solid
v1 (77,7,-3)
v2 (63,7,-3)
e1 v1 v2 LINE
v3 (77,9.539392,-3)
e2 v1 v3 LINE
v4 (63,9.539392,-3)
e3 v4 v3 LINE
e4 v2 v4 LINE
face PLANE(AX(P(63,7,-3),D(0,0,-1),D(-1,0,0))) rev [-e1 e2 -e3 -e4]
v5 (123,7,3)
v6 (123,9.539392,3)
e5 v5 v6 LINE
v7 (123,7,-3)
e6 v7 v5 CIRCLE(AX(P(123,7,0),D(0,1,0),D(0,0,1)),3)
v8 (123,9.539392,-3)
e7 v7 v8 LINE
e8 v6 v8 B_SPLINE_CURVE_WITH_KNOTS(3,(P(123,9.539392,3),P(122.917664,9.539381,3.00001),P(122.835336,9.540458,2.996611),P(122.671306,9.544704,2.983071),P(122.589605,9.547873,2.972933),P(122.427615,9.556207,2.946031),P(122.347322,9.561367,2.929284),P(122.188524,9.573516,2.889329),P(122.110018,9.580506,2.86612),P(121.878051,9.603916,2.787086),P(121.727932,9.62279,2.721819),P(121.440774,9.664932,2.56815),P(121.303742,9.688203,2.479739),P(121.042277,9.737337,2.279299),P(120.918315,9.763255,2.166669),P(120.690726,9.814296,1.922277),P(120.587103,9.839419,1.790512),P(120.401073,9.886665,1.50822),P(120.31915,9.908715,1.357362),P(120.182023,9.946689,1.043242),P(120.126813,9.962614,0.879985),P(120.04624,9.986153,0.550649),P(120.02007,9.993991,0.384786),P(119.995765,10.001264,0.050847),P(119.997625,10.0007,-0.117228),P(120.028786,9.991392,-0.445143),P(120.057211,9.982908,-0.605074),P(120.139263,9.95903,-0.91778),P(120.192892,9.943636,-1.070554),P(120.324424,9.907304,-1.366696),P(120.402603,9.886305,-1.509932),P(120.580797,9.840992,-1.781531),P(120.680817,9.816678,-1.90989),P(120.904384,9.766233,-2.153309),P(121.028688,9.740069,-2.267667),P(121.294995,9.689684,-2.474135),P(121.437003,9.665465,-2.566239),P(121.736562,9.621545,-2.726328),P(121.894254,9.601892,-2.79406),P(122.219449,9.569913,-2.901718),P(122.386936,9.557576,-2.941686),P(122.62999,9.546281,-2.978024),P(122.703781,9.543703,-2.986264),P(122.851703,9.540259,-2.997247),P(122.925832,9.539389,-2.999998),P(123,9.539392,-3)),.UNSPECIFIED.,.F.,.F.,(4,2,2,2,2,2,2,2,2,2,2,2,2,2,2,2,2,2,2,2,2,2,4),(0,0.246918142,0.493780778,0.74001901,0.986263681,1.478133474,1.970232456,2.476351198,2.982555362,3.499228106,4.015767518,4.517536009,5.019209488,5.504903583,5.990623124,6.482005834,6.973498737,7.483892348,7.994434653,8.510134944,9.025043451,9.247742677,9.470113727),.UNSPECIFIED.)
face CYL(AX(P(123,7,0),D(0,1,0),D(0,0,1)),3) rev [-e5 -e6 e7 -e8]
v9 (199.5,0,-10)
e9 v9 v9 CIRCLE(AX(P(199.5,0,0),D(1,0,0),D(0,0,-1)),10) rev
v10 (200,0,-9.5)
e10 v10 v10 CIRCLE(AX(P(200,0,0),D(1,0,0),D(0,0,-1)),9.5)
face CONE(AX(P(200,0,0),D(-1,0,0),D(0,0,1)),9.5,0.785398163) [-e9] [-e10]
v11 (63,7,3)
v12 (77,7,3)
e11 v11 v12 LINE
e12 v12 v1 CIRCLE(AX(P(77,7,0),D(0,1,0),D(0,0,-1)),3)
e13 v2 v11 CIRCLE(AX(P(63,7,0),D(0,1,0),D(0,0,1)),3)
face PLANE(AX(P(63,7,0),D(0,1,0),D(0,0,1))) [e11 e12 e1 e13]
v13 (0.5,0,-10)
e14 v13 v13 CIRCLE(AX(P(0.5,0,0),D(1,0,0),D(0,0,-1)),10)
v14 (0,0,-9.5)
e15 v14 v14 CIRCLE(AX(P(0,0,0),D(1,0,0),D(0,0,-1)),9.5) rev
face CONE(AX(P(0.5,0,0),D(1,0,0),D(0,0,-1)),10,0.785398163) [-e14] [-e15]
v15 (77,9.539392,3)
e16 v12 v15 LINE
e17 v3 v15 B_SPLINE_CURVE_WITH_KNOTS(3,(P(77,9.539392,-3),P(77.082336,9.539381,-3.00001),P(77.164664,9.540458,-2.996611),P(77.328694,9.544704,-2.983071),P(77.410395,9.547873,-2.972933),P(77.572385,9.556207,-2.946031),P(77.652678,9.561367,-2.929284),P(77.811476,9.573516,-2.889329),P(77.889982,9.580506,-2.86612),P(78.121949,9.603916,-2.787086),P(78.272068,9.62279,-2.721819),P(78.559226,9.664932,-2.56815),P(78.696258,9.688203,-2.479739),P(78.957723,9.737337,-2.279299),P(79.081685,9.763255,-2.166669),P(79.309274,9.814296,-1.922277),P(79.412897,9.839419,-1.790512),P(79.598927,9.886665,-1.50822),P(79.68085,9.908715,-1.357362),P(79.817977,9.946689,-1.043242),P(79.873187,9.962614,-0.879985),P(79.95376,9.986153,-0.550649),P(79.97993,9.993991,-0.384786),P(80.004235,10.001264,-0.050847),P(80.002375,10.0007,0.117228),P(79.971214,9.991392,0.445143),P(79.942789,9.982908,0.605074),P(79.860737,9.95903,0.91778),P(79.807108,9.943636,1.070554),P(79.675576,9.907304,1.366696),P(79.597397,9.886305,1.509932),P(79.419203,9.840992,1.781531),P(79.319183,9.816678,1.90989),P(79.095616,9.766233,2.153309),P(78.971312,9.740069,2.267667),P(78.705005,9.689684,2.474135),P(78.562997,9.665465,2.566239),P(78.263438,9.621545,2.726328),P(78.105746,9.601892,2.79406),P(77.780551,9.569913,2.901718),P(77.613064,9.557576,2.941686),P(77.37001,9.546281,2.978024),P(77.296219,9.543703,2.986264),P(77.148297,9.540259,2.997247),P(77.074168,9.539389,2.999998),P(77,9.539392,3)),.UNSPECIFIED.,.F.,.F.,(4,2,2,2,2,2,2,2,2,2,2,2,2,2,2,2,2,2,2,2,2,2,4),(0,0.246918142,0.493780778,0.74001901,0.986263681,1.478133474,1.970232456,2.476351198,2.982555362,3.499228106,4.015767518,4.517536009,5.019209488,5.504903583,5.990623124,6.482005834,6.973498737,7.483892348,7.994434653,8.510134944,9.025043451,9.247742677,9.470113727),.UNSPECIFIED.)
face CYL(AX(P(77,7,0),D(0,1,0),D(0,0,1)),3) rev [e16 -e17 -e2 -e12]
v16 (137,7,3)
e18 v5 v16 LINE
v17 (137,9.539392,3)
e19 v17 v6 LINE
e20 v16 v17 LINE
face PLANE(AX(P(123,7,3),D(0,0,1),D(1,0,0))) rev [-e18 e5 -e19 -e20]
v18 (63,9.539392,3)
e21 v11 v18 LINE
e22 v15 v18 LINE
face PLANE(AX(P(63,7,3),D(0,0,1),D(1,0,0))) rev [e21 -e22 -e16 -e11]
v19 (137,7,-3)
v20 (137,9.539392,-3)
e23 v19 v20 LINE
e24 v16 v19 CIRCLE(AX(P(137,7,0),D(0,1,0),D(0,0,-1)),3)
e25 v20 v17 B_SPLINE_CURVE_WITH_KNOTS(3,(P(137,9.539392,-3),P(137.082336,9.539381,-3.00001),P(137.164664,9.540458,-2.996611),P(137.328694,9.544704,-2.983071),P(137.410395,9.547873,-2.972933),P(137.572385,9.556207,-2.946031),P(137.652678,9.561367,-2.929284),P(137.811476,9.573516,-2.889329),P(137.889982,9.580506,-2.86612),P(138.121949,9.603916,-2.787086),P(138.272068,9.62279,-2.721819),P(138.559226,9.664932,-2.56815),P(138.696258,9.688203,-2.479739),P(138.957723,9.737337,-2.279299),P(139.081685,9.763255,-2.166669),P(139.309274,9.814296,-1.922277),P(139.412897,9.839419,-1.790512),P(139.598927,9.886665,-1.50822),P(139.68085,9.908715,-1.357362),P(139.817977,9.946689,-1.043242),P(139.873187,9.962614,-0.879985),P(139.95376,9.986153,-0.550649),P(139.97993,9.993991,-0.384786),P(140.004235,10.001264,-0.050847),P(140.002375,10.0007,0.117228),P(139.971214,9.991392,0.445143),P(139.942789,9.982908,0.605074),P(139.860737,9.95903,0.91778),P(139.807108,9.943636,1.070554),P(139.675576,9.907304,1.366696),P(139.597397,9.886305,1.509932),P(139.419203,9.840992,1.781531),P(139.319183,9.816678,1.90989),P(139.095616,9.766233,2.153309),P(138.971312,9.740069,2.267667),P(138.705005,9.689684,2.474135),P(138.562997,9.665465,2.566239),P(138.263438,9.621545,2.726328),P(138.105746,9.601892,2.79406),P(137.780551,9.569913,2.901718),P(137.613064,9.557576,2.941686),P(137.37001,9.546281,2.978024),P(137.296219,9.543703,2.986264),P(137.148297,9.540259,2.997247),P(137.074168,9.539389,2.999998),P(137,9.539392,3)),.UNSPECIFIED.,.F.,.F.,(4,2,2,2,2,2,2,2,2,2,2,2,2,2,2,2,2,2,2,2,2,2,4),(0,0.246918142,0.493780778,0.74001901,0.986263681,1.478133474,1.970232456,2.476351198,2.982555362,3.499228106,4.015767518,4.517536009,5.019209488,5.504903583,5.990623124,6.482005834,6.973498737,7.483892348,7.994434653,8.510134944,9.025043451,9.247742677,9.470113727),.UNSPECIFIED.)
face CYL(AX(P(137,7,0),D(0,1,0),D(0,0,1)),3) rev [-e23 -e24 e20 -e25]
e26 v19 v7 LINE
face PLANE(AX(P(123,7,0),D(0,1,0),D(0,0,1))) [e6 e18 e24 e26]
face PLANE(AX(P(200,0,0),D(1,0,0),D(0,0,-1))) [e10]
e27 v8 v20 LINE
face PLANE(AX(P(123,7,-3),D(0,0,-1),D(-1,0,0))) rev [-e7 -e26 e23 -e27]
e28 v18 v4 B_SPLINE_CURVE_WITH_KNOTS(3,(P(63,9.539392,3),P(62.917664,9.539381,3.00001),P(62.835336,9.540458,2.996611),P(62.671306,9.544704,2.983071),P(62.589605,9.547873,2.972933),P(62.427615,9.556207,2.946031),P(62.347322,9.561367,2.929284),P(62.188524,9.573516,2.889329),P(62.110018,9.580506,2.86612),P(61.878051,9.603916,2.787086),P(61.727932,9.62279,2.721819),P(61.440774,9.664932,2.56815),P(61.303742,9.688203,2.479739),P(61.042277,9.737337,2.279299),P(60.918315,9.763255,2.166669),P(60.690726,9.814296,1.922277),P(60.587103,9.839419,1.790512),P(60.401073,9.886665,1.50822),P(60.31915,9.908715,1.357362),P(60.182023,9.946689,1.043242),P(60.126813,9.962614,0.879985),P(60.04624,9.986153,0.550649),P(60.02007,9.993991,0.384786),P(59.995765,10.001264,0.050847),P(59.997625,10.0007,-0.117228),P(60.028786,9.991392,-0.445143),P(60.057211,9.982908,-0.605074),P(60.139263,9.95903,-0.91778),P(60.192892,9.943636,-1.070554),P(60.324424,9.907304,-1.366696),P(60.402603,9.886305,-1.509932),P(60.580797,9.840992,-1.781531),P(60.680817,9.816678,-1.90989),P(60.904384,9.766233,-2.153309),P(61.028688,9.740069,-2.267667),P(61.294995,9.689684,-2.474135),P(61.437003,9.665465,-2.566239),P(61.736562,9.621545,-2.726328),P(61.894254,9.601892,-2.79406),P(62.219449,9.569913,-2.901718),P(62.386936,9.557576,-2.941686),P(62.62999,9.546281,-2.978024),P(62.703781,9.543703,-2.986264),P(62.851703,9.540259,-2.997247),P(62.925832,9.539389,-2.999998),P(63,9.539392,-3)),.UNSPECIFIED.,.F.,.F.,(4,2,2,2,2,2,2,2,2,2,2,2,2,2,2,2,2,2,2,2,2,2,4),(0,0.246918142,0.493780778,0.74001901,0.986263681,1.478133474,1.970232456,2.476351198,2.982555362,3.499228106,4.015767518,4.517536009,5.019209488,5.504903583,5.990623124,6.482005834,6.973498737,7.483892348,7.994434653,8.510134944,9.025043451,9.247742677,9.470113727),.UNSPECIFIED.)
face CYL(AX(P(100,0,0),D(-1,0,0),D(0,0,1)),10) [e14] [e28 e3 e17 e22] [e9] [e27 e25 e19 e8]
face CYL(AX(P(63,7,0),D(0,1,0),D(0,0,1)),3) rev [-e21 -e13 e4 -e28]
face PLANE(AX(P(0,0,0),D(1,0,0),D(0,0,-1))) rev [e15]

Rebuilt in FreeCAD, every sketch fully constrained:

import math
import FreeCAD as App
import Part
import Sketcher


def edges_at(feature, points):
    """Names of the edges that pass closest to the given points."""
    edges = feature.Shape.Edges
    near = lambda p: min(range(len(edges)), key=lambda i: edges[i].distToShape(Part.Vertex(*p))[0])
    return sorted({f"Edge{near(p) + 1}" for p in points})

doc = App.newDocument("Part")
body = doc.addObject("PartDesign::Body", "Body")

# Sketch on YZ plane
sketch1 = body.newObject("Sketcher::SketchObject", "Sketch")
sketch1.AttachmentSupport = (doc.getObject("YZ_Plane"), [""])
sketch1.MapMode = "FlatFace"
sketch1.addGeometry(Part.Circle(App.Vector(0, 0, 0), App.Vector(0, 0, 1), 10), False)
sketch1.addConstraint([
    Sketcher.Constraint("Coincident", 0, 3, -1, 1),
    Sketcher.Constraint("Diameter", 0, 20.0),
])
pad1 = body.newObject("PartDesign::Pad", "Pad")
pad1.Profile = sketch1
pad1.Length = 100

# Sketch on XZ plane
sketch2 = body.newObject("Sketcher::SketchObject", "Sketch001")
sketch2.AttachmentSupport = (doc.getObject("XZ_Plane"), [""])
sketch2.MapMode = "FlatFace"
sketch2.AttachmentOffset = App.Placement(App.Vector(0, 0, -10), App.Rotation())
sketch2.addGeometry([
    Part.LineSegment(App.Vector(77, -3, 0), App.Vector(63, -3, 0)),
    Part.ArcOfCircle(Part.Circle(App.Vector(63, 0, 0), App.Vector(0, 0, 1), 3), math.radians(90), math.radians(270)),
    Part.LineSegment(App.Vector(63, 3, 0), App.Vector(77, 3, 0)),
    Part.ArcOfCircle(Part.Circle(App.Vector(77, 0, 0), App.Vector(0, 0, 1), 3), math.radians(-90), math.radians(90)),
], False)
sketch2.addConstraint([
    Sketcher.Constraint("Tangent", 0, 2, 1, 2),
    Sketcher.Constraint("Tangent", 1, 1, 2, 1),
    Sketcher.Constraint("Tangent", 2, 2, 3, 2),
    Sketcher.Constraint("Tangent", 3, 1, 0, 1),
    Sketcher.Constraint("Horizontal", 0),
    Sketcher.Constraint("Horizontal", 2),
    Sketcher.Constraint("PointOnObject", 1, 3, -1),
    Sketcher.Constraint("Radius", 1, 3.0),
    Sketcher.Constraint("DistanceX", 0, 2, 0, 1, 14.0),
    Sketcher.Constraint("DistanceX", -1, 1, 1, 3, 63.0),
])
pocket1 = body.newObject("PartDesign::Pocket", "Pocket")
pocket1.Profile = sketch2
pocket1.Length = 3
pocket1.Reversed = True
doc.recompute()

chamfer = body.newObject("PartDesign::Chamfer", "Chamfer")
chamfer.Base = (pocket1, edges_at(pocket1, [(0, 0, 10)]))
chamfer.Size = 0.5

# Sketch on YZ plane
sketch3 = body.newObject("Sketcher::SketchObject", "Sketch002")
sketch3.AttachmentSupport = (doc.getObject("YZ_Plane"), [""])
sketch3.MapMode = "FlatFace"
sketch3.AttachmentOffset = App.Placement(App.Vector(0, 0, 100), App.Rotation())
sketch3.addGeometry(Part.Circle(App.Vector(0, 0, 0), App.Vector(0, 0, 1), 10), False)
sketch3.addConstraint([
    Sketcher.Constraint("Coincident", 0, 3, -1, 1),
    Sketcher.Constraint("Diameter", 0, 20.0),
])
pad2 = body.newObject("PartDesign::Pad", "Pad001")
pad2.Profile = sketch3
pad2.Length = 100

# Sketch on XZ plane
sketch4 = body.newObject("Sketcher::SketchObject", "Sketch003")
sketch4.AttachmentSupport = (doc.getObject("XZ_Plane"), [""])
sketch4.MapMode = "FlatFace"
sketch4.AttachmentOffset = App.Placement(App.Vector(0, 0, -10), App.Rotation())
sketch4.addGeometry([
    Part.LineSegment(App.Vector(137, -3, 0), App.Vector(123, -3, 0)),
    Part.ArcOfCircle(Part.Circle(App.Vector(123, 0, 0), App.Vector(0, 0, 1), 3), math.radians(90), math.radians(270)),
    Part.LineSegment(App.Vector(123, 3, 0), App.Vector(137, 3, 0)),
    Part.ArcOfCircle(Part.Circle(App.Vector(137, 0, 0), App.Vector(0, 0, 1), 3), math.radians(-90), math.radians(90)),
], False)
sketch4.addConstraint([
    Sketcher.Constraint("Tangent", 0, 2, 1, 2),
    Sketcher.Constraint("Tangent", 1, 1, 2, 1),
    Sketcher.Constraint("Tangent", 2, 2, 3, 2),
    Sketcher.Constraint("Tangent", 3, 1, 0, 1),
    Sketcher.Constraint("Horizontal", 0),
    Sketcher.Constraint("Horizontal", 2),
    Sketcher.Constraint("PointOnObject", 1, 3, -1),
    Sketcher.Constraint("Radius", 1, 3.0),
    Sketcher.Constraint("DistanceX", 0, 2, 0, 1, 14.0),
    Sketcher.Constraint("DistanceX", -1, 1, 1, 3, 123.0),
])
pocket2 = body.newObject("PartDesign::Pocket", "Pocket001")
pocket2.Profile = sketch4
pocket2.Length = 3
pocket2.Reversed = True
doc.recompute()

chamfer2 = body.newObject("PartDesign::Chamfer", "Chamfer001")
chamfer2.Base = (pocket2, edges_at(pocket2, [(200, 0, 10)]))
chamfer2.Size = 0.5

doc.recompute()
